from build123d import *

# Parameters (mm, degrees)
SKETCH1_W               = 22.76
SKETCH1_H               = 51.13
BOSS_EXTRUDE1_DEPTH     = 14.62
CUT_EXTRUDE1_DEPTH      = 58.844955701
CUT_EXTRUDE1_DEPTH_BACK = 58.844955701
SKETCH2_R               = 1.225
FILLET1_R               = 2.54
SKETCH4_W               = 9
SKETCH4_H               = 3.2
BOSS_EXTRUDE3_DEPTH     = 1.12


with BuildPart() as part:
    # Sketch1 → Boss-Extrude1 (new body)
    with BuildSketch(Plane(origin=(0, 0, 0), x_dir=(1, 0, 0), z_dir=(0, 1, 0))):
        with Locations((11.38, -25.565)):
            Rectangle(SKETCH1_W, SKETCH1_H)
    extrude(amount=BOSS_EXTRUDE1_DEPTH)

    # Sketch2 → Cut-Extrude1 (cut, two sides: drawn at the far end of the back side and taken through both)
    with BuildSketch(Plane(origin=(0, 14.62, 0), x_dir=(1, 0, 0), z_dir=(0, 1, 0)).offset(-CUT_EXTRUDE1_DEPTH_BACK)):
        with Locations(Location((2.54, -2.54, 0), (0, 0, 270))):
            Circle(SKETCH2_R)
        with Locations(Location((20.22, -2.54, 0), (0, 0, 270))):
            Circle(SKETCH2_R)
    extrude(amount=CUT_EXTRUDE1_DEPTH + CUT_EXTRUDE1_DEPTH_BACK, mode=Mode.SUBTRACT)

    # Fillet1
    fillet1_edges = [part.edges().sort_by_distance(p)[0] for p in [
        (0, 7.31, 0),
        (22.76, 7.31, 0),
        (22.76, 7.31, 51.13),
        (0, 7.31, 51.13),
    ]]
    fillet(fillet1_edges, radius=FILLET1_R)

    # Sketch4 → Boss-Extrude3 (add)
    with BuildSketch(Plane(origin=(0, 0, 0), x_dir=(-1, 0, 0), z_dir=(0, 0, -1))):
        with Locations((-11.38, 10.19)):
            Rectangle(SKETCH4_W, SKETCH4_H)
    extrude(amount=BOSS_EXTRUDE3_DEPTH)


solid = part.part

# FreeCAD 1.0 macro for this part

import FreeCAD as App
import Part
import Sketcher

V = App.Vector


def edges_at(feature, points):
    """Names of the edges that pass closest to the given points."""
    edges = feature.Shape.Edges
    near = lambda p: min(range(len(edges)), key=lambda i: edges[i].distToShape(Part.Vertex(*p))[0])
    return sorted({f"Edge{near(p) + 1}" for p in points})


def add_polygon(sketch, points):
    """Adds a closed chain of lines whose ends are joined by coincident constraints."""
    first, n = sketch.GeometryCount, len(points)
    for a, b in zip(points, points[1:] + points[:1]):
        sketch.addGeometry(Part.LineSegment(App.Vector(*a, 0), App.Vector(*b, 0)), False)
    for i in range(n):
        sketch.addConstraint(Sketcher.Constraint("Coincident", first + i, 2, first + (i + 1) % n, 1))

doc = App.newDocument("Part")
body = doc.addObject("PartDesign::Body", "Body")

# Sketch on XZ plane
sketch1 = body.newObject("Sketcher::SketchObject", "Sketch")
sketch1.AttachmentSupport = (doc.getObject("XZ_Plane"), [""])
sketch1.MapMode = "FlatFace"
add_polygon(sketch1, [(0, 0), (0, 51.13), (22.76, 51.13), (22.76, 0)])  # lines 0-3
sketch1.addConstraint(Sketcher.Constraint("Vertical", 0))
sketch1.addConstraint(Sketcher.Constraint("Horizontal", 1))
sketch1.addConstraint(Sketcher.Constraint("Vertical", 2))
sketch1.addConstraint(Sketcher.Constraint("Horizontal", 3))
sketch1.addConstraint(Sketcher.Constraint("Coincident", 3, 2, -1, 1))
sketch1.addConstraint(Sketcher.Constraint("DistanceX", 1, 1, 1, 2, 22.76))
sketch1.addConstraint(Sketcher.Constraint("DistanceY", 0, 1, 0, 2, 51.13))
pad1 = body.newObject("PartDesign::Pad", "Pad")
pad1.Profile = sketch1
pad1.Length = 14.62
pad1.Reversed = True

# Sketch on XZ plane
sketch2 = body.newObject("Sketcher::SketchObject", "Sketch001")
sketch2.AttachmentSupport = (doc.getObject("XZ_Plane"), [""])
sketch2.MapMode = "FlatFace"
sketch2.AttachmentOffset = App.Placement(V(0, 0, -14.62), App.Rotation())
sketch2.addGeometry(Part.Circle(V(2.54, 2.54, 0), V(0, 0, 1), 1.225), False)
sketch2.addGeometry(Part.Circle(V(20.22, 2.54, 0), V(0, 0, 1), 1.225), False)
sketch2.addConstraint(Sketcher.Constraint("Equal", 0, 1))
sketch2.addConstraint(Sketcher.Constraint("Horizontal", 0, 3, 1, 3))
sketch2.addConstraint(Sketcher.Constraint("Diameter", 0, 2.45))
sketch2.addConstraint(Sketcher.Constraint("DistanceX", -1, 1, 0, 3, 2.54))
sketch2.addConstraint(Sketcher.Constraint("DistanceY", -1, 1, 0, 3, 2.54))
sketch2.addConstraint(Sketcher.Constraint("DistanceX", -1, 1, 1, 3, 20.22))
pocket1 = body.newObject("PartDesign::Pocket", "Pocket")
pocket1.Profile = sketch2
pocket1.Type = "ThroughAll"
pocket1.Midplane = True
doc.recompute()

fillet = body.newObject("PartDesign::Fillet", "Fillet")
fillet.Base = (pocket1, edges_at(pocket1, [
    (0, 7.31, 0),
    (22.76, 7.31, 0),
    (22.76, 7.31, 51.13),
    (0, 7.31, 51.13),
]))
fillet.Radius = 2.54

# Sketch on XY plane
sketch3 = body.newObject("Sketcher::SketchObject", "Sketch002")
sketch3.AttachmentSupport = (doc.getObject("XY_Plane"), [""])
sketch3.MapMode = "FlatFace"
add_polygon(sketch3, [(15.88, 11.79), (15.88, 8.59), (6.88, 8.59), (6.88, 11.79)])  # lines 0-3
sketch3.addConstraint(Sketcher.Constraint("Vertical", 0))
sketch3.addConstraint(Sketcher.Constraint("Horizontal", 1))
sketch3.addConstraint(Sketcher.Constraint("Vertical", 2))
sketch3.addConstraint(Sketcher.Constraint("Horizontal", 3))
sketch3.addConstraint(Sketcher.Constraint("DistanceX", 1, 2, 1, 1, 9.0))
sketch3.addConstraint(Sketcher.Constraint("DistanceY", 0, 2, 0, 1, 3.2))
sketch3.addConstraint(Sketcher.Constraint("DistanceX", -1, 1, 0, 2, 15.88))
sketch3.addConstraint(Sketcher.Constraint("DistanceY", -1, 1, 0, 2, 8.59))
pad2 = body.newObject("PartDesign::Pad", "Pad001")
pad2.Profile = sketch3
pad2.Length = 1.12
pad2.Reversed = True

doc.recompute()
